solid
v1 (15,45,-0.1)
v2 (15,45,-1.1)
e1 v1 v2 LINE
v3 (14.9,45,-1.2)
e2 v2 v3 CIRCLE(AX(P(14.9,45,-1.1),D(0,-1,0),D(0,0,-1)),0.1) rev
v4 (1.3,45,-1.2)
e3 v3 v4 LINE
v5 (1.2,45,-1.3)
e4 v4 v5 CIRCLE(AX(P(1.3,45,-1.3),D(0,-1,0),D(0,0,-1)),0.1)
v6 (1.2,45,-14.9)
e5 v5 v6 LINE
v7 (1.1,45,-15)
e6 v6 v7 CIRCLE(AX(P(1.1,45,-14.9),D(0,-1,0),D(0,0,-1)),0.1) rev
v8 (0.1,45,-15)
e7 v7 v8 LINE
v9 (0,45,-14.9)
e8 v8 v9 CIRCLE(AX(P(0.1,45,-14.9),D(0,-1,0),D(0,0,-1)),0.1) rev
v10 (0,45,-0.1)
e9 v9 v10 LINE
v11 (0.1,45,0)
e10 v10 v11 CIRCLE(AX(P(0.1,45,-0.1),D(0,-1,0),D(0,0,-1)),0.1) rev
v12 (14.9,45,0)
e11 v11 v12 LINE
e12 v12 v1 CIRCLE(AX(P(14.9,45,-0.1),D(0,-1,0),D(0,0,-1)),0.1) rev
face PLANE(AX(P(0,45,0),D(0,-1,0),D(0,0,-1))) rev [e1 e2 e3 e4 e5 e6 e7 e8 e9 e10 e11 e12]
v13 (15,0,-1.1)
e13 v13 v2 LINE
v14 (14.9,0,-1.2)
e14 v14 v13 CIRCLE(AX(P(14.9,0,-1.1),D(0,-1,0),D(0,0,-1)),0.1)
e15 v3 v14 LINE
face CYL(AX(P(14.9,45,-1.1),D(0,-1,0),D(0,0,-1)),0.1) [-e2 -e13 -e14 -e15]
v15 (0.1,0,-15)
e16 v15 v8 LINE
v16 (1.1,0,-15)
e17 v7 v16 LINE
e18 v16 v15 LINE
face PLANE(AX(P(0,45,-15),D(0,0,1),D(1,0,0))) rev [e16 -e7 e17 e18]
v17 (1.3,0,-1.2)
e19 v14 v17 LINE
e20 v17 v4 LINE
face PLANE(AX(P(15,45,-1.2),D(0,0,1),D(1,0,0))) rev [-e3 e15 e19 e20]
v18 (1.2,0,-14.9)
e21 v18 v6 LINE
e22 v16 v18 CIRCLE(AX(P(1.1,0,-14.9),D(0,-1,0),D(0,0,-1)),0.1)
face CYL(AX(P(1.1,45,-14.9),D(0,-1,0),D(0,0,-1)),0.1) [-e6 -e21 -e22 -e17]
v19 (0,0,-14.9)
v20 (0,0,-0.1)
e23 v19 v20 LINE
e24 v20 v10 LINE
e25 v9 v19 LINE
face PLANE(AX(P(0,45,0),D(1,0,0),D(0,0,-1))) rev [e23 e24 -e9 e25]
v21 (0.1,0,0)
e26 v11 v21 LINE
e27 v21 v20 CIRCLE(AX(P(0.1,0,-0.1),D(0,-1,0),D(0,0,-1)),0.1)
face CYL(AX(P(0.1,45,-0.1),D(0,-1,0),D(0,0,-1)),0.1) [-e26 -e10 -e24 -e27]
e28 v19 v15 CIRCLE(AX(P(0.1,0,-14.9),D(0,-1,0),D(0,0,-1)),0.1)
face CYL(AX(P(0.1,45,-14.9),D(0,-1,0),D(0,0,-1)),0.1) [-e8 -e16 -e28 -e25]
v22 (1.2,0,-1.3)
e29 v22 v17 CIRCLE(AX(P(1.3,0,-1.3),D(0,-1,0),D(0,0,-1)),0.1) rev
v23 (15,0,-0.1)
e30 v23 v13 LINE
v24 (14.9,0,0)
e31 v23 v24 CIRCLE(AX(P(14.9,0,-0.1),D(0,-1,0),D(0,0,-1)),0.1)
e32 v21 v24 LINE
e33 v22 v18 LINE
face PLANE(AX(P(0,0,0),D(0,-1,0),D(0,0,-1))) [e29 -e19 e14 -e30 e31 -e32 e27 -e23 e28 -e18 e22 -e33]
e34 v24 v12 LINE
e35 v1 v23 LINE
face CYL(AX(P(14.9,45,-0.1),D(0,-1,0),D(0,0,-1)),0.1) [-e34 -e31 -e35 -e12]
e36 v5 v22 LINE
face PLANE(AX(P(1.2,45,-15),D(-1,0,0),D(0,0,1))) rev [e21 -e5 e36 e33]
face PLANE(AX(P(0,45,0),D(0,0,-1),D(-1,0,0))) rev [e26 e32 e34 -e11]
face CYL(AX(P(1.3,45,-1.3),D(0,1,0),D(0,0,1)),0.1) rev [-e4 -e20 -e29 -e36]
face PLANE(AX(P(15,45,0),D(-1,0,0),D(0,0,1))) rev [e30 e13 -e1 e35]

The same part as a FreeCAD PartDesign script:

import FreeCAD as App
import Part
import Sketcher
Q = App.Units.Quantity


def edges_at(feature, points):
    """Names of the edges that pass closest to the given points."""
    edges = feature.Shape.Edges
    near = lambda p: min(range(len(edges)), key=lambda i: edges[i].distToShape(Part.Vertex(*p))[0])
    return sorted({f"Edge{near(p) + 1}" for p in points})

doc = App.newDocument("Part")
body = doc.addObject("PartDesign::Body", "Body")

# Sketch on XZ plane
sketch1 = body.newObject("Sketcher::SketchObject", "Sketch")
sketch1.AttachmentSupport = (doc.getObject("XZ_Plane"), [""])
sketch1.MapMode = "FlatFace"
sketch1.addGeometry(Part.LineSegment(App.Vector(0, 0, 0), App.Vector(15, 0, 0)), False)
sketch1.addGeometry(Part.LineSegment(App.Vector(15, 0, 0), App.Vector(15, -1.2, 0)), False)
sketch1.addGeometry(Part.LineSegment(App.Vector(15, -1.2, 0), App.Vector(1.2, -1.2, 0)), False)
sketch1.addGeometry(Part.LineSegment(App.Vector(1.2, -1.2, 0), App.Vector(1.2, -15, 0)), False)
sketch1.addGeometry(Part.LineSegment(App.Vector(1.2, -15, 0), App.Vector(0, -15, 0)), False)
sketch1.addGeometry(Part.LineSegment(App.Vector(0, -15, 0), App.Vector(0, 0, 0)), False)
sketch1.addConstraint(Sketcher.Constraint("Coincident", 0, 2, 1, 1))
sketch1.addConstraint(Sketcher.Constraint("Coincident", 1, 2, 2, 1))
sketch1.addConstraint(Sketcher.Constraint("Coincident", 2, 2, 3, 1))
sketch1.addConstraint(Sketcher.Constraint("Coincident", 3, 2, 4, 1))
sketch1.addConstraint(Sketcher.Constraint("Coincident", 4, 2, 5, 1))
sketch1.addConstraint(Sketcher.Constraint("Coincident", 5, 2, 0, 1))
sketch1.addConstraint(Sketcher.Constraint("Horizontal", 0))
sketch1.addConstraint(Sketcher.Constraint("Vertical", 1))
sketch1.addConstraint(Sketcher.Constraint("Horizontal", 2))
sketch1.addConstraint(Sketcher.Constraint("Vertical", 3))
sketch1.addConstraint(Sketcher.Constraint("Horizontal", 4))
sketch1.addConstraint(Sketcher.Constraint("Vertical", 5))
sketch1.addConstraint(Sketcher.Constraint("Coincident", 5, 2, -1, 1))
sketch1.addConstraint(Sketcher.Constraint("Equal", 4, 1))
sketch1.addConstraint(Sketcher.Constraint("Equal", 2, 3))
sketch1.addConstraint(Sketcher.Constraint("DistanceX", 0, 1, 0, 2, Q("15 mm")))
sketch1.addConstraint(Sketcher.Constraint("DistanceX", 2, 2, 2, 1, Q("13.8 mm")))
pad1 = body.newObject("PartDesign::Pad", "Pad")
pad1.Profile = sketch1
pad1.Length = 45
pad1.Reversed = True
doc.recompute()

fillet = body.newObject("PartDesign::Fillet", "Fillet")
fillet.Base = (pad1, edges_at(pad1, [
    (0, 22.5, -15),
    (1.2, 22.5, -15),
    (1.2, 22.5, -1.2),
    (15, 22.5, -1.2),
    (15, 22.5, 0),
    (0, 22.5, 0),
]))
fillet.Radius = 0.1

doc.recompute()
